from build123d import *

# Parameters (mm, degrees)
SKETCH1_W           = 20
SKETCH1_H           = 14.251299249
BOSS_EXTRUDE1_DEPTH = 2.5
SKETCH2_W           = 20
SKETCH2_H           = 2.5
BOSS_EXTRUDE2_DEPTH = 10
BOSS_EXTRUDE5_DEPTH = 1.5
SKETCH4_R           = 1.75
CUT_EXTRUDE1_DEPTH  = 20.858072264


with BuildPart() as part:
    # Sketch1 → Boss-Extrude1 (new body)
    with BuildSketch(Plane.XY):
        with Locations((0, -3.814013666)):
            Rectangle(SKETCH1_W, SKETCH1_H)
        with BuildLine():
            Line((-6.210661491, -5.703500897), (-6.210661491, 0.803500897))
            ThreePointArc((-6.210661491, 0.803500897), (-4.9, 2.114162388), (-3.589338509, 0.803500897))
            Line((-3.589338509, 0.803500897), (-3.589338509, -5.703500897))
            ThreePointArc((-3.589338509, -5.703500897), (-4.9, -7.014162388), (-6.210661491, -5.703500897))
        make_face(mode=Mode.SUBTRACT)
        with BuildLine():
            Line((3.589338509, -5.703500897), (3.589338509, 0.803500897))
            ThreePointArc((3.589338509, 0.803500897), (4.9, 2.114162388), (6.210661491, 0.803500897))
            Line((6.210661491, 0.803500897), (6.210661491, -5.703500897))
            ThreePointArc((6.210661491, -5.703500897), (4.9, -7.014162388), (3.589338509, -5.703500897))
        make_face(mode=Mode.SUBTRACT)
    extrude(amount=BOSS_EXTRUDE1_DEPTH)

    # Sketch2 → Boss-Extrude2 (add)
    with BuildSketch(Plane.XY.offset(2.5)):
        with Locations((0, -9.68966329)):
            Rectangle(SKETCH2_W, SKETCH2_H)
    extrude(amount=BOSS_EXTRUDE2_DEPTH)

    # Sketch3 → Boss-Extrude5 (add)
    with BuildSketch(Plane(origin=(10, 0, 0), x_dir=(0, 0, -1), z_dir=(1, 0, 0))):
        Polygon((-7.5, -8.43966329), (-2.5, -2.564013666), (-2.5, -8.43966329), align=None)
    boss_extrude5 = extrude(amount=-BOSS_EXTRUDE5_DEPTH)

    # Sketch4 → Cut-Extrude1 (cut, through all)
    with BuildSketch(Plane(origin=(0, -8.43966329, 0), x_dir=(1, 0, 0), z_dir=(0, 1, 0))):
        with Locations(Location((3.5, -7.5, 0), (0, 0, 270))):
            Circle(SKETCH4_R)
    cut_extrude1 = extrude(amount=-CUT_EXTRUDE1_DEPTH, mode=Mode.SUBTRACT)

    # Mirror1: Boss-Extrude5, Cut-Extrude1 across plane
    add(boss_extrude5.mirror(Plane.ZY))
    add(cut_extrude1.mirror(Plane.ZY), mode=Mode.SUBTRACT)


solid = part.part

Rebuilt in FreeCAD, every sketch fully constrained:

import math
import FreeCAD as App
import Part
import Sketcher

V = App.Vector

doc = App.newDocument("Part")
body = doc.addObject("PartDesign::Body", "Body")

# Sketch on XY plane
sketch1 = body.newObject("Sketcher::SketchObject", "Sketch")
sketch1.AttachmentSupport = (doc.getObject("XY_Plane"), [""])
sketch1.MapMode = "FlatFace"
sketch1.addGeometry([
    Part.LineSegment(V(-10, 3.3, 0), V(-10, -10.9, 0)),  # 0
    Part.LineSegment(V(-10, -10.9, 0), V(10, -10.9, 0)),  # 1
    Part.LineSegment(V(10, -10.9, 0), V(10, 3.3, 0)),  # 2
    Part.LineSegment(V(10, 3.3, 0), V(-10, 3.3, 0)),  # 3
    Part.ArcOfCircle(Part.Circle(V(-4.9, -5.7, 0), V(0, 0, 1), 1.3), math.radians(180), math.radians(360)),  # 4
    Part.LineSegment(V(-6.2, -5.7, 0), V(-6.2, 0.8, 0)),  # 5
    Part.ArcOfCircle(Part.Circle(V(-4.9, 0.8, 0), V(0, 0, 1), 1.3), math.radians(0), math.radians(180)),  # 6
    Part.LineSegment(V(-3.6, 0.8, 0), V(-3.6, -5.7, 0)),  # 7
    Part.ArcOfCircle(Part.Circle(V(4.9, -5.7, 0), V(0, 0, 1), 1.3), math.radians(180), math.radians(360)),  # 8
    Part.LineSegment(V(3.6, -5.7, 0), V(3.6, 0.8, 0)),  # 9
    Part.ArcOfCircle(Part.Circle(V(4.9, 0.8, 0), V(0, 0, 1), 1.3), math.radians(0), math.radians(180)),  # 10
    Part.LineSegment(V(6.2, 0.8, 0), V(6.2, -5.7, 0)),  # 11
], False)
sketch1.addConstraint([
    Sketcher.Constraint("Coincident", 0, 2, 1, 1),
    Sketcher.Constraint("Coincident", 1, 2, 2, 1),
    Sketcher.Constraint("Coincident", 2, 2, 3, 1),
    Sketcher.Constraint("Coincident", 3, 2, 0, 1),
    Sketcher.Constraint("Tangent", 4, 1, 5, 1),
    Sketcher.Constraint("Tangent", 5, 2, 6, 2),
    Sketcher.Constraint("Tangent", 6, 1, 7, 1),
    Sketcher.Constraint("Tangent", 7, 2, 4, 2),
    Sketcher.Constraint("Tangent", 8, 1, 9, 1),
    Sketcher.Constraint("Tangent", 9, 2, 10, 2),
    Sketcher.Constraint("Tangent", 10, 1, 11, 1),
    Sketcher.Constraint("Tangent", 11, 2, 8, 2),
    Sketcher.Constraint("Vertical", 0),
    Sketcher.Constraint("Horizontal", 1),
    Sketcher.Constraint("Vertical", 2),
    Sketcher.Constraint("Horizontal", 3),
    Sketcher.Constraint("Vertical", 5),
    Sketcher.Constraint("Vertical", 7),
    Sketcher.Constraint("Vertical", 9),
    Sketcher.Constraint("Vertical", 11),
    Sketcher.Constraint("Equal", 6, 8),
    Sketcher.Constraint("Symmetric", 4, 3, 8, 3, -2),
    Sketcher.Constraint("Horizontal", 6, 3, 10, 3),
    Sketcher.Constraint("DistanceX", 1, 1, 1, 2, 20.0),
    Sketcher.Constraint("DistanceX", 0, 2, -1, 1, 10.0),
    Sketcher.Constraint("DistanceX", 4, 3, -1, 1, 4.9),
    Sketcher.Constraint("DistanceY", 5, 1, 5, 2, 6.507002),
    Sketcher.Constraint("Radius", 4, 1.310661),
    Sketcher.Constraint("DistanceY", 0, 2, 0, 1, 14.251299),
    Sketcher.Constraint("DistanceY", 4, 3, -1, 1, 5.703501),
    Sketcher.Constraint("DistanceY", 0, 2, -1, 1, 10.939663),
])
pad1 = body.newObject("PartDesign::Pad", "Pad")
pad1.Profile = sketch1
pad1.Length = 2.5

# Sketch on XY plane
sketch2 = body.newObject("Sketcher::SketchObject", "Sketch001")
sketch2.AttachmentSupport = (doc.getObject("XY_Plane"), [""])
sketch2.MapMode = "FlatFace"
sketch2.AttachmentOffset = App.Placement(V(0, 0, 2.5), App.Rotation())
sketch2.addGeometry([
    Part.LineSegment(V(-10, -8.4, 0), V(-10, -10.9, 0)),
    Part.LineSegment(V(-10, -10.9, 0), V(10, -10.9, 0)),
    Part.LineSegment(V(10, -10.9, 0), V(10, -8.4, 0)),
    Part.LineSegment(V(10, -8.4, 0), V(-10, -8.4, 0)),
], False)
sketch2.addConstraint([
    Sketcher.Constraint("Coincident", 0, 2, 1, 1),
    Sketcher.Constraint("Coincident", 1, 2, 2, 1),
    Sketcher.Constraint("Coincident", 2, 2, 3, 1),
    Sketcher.Constraint("Coincident", 3, 2, 0, 1),
    Sketcher.Constraint("Vertical", 0),
    Sketcher.Constraint("Horizontal", 1),
    Sketcher.Constraint("Vertical", 2),
    Sketcher.Constraint("Horizontal", 3),
    Sketcher.Constraint("DistanceX", 1, 1, 1, 2, 20.0),
    Sketcher.Constraint("DistanceY", 0, 2, 0, 1, 2.5),
    Sketcher.Constraint("DistanceX", 0, 2, -1, 1, 10.0),
    Sketcher.Constraint("DistanceY", 0, 2, -1, 1, 10.939663),
])
pad2 = body.newObject("PartDesign::Pad", "Pad001")
pad2.Profile = sketch2
pad2.Length = 10

# Sketch on YZ plane
sketch3 = body.newObject("Sketcher::SketchObject", "Sketch002")
sketch3.AttachmentSupport = (doc.getObject("YZ_Plane"), [""])
sketch3.MapMode = "FlatFace"
sketch3.AttachmentOffset = App.Placement(V(0, 0, 10), App.Rotation())
sketch3.addGeometry([
    Part.LineSegment(V(-3, 2, 0), V(-8, 8, 0)),
    Part.LineSegment(V(-8, 8, 0), V(-8, 2, 0)),
    Part.LineSegment(V(-8, 2, 0), V(-3, 2, 0)),
], False)
sketch3.addConstraint([
    Sketcher.Constraint("Coincident", 0, 2, 1, 1),
    Sketcher.Constraint("Coincident", 1, 2, 2, 1),
    Sketcher.Constraint("Coincident", 2, 2, 0, 1),
    Sketcher.Constraint("Vertical", 1),
    Sketcher.Constraint("Horizontal", 2),
    Sketcher.Constraint("DistanceY", 1, 2, 1, 1, 5.0),
    Sketcher.Constraint("DistanceY", -1, 1, 0, 2, 7.5),
    Sketcher.Constraint("DistanceX", 2, 1, 2, 2, 5.87565),
    Sketcher.Constraint("DistanceX", 0, 2, -1, 1, 8.439663),
])
pad3 = body.newObject("PartDesign::Pad", "Pad002")
pad3.Profile = sketch3
pad3.Length = 1.5
pad3.Reversed = True

# Sketch on XZ plane
sketch4 = body.newObject("Sketcher::SketchObject", "Sketch003")
sketch4.AttachmentSupport = (doc.getObject("XZ_Plane"), [""])
sketch4.MapMode = "FlatFace"
sketch4.AttachmentOffset = App.Placement(V(0, 0, 8.439663), App.Rotation())
sketch4.addGeometry(Part.Circle(V(3.5, 7.5, 0), V(0, 0, 1), 1.8), False)
sketch4.addConstraint([
    Sketcher.Constraint("Diameter", 0, 3.5),
    Sketcher.Constraint("DistanceX", -1, 1, 0, 3, 3.5),
    Sketcher.Constraint("DistanceY", -1, 1, 0, 3, 7.5),
])
pocket1 = body.newObject("PartDesign::Pocket", "Pocket")
pocket1.Profile = sketch4
pocket1.Type = "ThroughAll"
pocket1.Reversed = True
doc.recompute()

mirrored = body.newObject("PartDesign::Mirrored", "Mirrored")
mirrored.Originals = [pad3, pocket1]
mirrored.MirrorPlane = (doc.getObject("YZ_Plane"), [""])
body.Tip = mirrored

doc.recompute()
